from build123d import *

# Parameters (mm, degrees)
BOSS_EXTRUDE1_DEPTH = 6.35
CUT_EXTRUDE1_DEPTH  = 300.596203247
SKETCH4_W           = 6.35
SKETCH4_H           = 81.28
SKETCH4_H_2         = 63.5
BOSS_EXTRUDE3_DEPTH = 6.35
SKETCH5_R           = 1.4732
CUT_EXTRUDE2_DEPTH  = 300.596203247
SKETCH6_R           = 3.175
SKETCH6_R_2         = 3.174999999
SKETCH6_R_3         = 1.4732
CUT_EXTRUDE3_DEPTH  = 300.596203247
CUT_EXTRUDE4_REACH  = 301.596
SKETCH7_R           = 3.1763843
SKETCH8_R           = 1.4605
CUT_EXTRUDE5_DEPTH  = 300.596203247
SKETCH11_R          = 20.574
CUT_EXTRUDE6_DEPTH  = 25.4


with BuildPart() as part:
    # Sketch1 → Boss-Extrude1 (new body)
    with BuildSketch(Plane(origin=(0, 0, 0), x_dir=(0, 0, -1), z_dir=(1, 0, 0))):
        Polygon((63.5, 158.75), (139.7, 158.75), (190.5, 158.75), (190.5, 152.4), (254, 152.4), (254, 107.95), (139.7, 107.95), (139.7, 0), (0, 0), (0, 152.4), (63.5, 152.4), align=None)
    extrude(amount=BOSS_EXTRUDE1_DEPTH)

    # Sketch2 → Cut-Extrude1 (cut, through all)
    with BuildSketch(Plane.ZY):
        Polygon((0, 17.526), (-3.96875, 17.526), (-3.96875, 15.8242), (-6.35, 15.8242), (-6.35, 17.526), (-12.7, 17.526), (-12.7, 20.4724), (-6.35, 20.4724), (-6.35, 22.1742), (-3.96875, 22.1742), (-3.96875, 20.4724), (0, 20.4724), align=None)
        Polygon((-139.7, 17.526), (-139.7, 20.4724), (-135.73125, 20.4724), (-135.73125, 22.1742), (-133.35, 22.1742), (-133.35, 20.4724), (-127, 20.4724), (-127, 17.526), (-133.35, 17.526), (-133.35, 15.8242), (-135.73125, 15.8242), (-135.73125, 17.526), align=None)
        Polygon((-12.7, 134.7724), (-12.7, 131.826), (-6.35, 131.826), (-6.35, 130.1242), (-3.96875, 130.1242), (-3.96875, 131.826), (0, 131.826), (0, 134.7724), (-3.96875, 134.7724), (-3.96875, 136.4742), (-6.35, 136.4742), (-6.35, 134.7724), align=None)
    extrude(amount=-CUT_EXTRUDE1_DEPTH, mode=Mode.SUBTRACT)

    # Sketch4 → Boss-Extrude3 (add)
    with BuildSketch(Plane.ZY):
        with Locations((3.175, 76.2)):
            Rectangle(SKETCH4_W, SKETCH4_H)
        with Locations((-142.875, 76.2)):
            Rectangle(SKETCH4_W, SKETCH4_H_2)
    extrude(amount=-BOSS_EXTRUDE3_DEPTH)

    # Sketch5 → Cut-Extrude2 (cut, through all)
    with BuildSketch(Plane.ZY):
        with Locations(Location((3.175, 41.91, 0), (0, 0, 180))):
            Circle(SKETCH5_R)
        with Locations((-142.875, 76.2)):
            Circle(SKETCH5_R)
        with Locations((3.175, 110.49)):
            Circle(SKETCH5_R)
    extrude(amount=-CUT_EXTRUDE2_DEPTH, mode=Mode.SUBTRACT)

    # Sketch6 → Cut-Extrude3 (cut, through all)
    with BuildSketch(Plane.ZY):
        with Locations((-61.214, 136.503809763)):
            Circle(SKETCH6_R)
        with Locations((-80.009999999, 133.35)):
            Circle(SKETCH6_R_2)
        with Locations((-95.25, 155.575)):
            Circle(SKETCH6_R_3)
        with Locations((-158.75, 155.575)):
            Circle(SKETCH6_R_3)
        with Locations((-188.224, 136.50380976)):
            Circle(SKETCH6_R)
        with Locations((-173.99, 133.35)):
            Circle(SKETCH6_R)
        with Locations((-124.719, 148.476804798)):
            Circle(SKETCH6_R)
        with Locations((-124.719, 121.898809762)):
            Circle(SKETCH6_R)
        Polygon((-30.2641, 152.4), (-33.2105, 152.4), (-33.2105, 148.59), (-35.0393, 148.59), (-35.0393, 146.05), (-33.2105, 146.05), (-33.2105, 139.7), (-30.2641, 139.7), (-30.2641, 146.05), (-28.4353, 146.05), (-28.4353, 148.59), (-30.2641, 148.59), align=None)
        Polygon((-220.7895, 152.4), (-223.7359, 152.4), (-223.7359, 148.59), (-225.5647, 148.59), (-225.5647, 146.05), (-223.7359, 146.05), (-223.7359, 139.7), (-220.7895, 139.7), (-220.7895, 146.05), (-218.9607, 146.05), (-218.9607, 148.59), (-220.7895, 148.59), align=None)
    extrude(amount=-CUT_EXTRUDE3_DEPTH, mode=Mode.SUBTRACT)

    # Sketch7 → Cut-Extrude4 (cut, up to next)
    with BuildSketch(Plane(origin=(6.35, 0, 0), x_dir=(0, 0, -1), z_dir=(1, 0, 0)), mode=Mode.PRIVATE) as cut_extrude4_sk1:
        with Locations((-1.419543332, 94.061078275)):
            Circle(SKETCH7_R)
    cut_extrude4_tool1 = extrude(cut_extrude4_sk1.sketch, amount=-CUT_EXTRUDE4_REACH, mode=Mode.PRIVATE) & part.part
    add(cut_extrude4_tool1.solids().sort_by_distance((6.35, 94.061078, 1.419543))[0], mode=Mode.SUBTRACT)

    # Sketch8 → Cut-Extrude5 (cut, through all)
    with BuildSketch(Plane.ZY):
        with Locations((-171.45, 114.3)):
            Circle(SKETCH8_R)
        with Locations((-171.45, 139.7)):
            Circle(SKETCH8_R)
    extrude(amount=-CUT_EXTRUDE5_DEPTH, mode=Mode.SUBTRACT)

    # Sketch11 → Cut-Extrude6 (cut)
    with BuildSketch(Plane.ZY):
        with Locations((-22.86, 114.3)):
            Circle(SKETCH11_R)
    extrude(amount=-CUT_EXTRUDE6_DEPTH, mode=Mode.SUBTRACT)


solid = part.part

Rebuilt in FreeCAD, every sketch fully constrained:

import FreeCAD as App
import Part
import Sketcher

V = App.Vector
Q = App.Units.Quantity


def add_polygon(sketch, points):
    """Adds a closed chain of lines whose ends are joined by coincident constraints."""
    first, n = sketch.GeometryCount, len(points)
    for a, b in zip(points, points[1:] + points[:1]):
        sketch.addGeometry(Part.LineSegment(App.Vector(*a, 0), App.Vector(*b, 0)), False)
    for i in range(n):
        sketch.addConstraint(Sketcher.Constraint("Coincident", first + i, 2, first + (i + 1) % n, 1))

doc = App.newDocument("Part")
body = doc.addObject("PartDesign::Body", "Body")

sketch1 = body.newObject("Sketcher::SketchObject", "Sketch")
sketch1.AttachmentSupport = (doc.getObject("YZ_Plane"), [""])
sketch1.MapMode = "FlatFace"
add_polygon(sketch1, [(159, -190), (159, -64), (152, -64), (152, 0), (0, 0), (0, -140), (108, -140), (108, -254), (152, -254), (152, -190)])
sketch1.addConstraint([
    Sketcher.Constraint("Vertical", 0),
    Sketcher.Constraint("Horizontal", 1),
    Sketcher.Constraint("Vertical", 2),
    Sketcher.Constraint("Horizontal", 3),
    Sketcher.Constraint("Vertical", 4),
    Sketcher.Constraint("Horizontal", 5),
    Sketcher.Constraint("Vertical", 6),
    Sketcher.Constraint("Horizontal", 7),
    Sketcher.Constraint("Vertical", 8),
    Sketcher.Constraint("Horizontal", 9),
    Sketcher.Constraint("Coincident", 3, 2, -1, 1),
    Sketcher.Constraint("Vertical", 2, 2, 7, 2),
    Sketcher.Constraint("Equal", 2, 8),
    Sketcher.Constraint("DistanceX", 3, 2, 3, 1, Q("6 in")),
    Sketcher.Constraint("DistanceY", 0, 1, 0, 2, Q("5 in")),
    Sketcher.Constraint("DistanceY", 2, 1, 2, 2, Q("2.5 in")),
    Sketcher.Constraint("DistanceY", 4, 2, 4, 1, Q("5.5 in")),
    Sketcher.Constraint("DistanceX", 5, 2, 0, 2, Q("2 in")),
    Sketcher.Constraint("DistanceX", 1, 2, 1, 1, Q("0.25 in")),
])
pad1 = body.newObject("PartDesign::Pad", "Pad")
pad1.Profile = sketch1
pad1.Length = Q("0.25 in")

sketch2 = body.newObject("Sketcher::SketchObject", "Sketch001")
sketch2.AttachmentSupport = (doc.getObject("YZ_Plane"), [""])
sketch2.MapMode = "FlatFace"
add_polygon(sketch2, [(17.5, -4), (17.5, 0), (20.5, 0), (20.5, -4), (22.2, -4), (22.2, -6.3), (20.5, -6.3), (20.5, -12.7), (17.5, -12.7), (17.5, -6.3), (15.8, -6.3), (15.8, -4)])
add_polygon(sketch2, [(20.5, -139.7), (17.5, -139.7), (17.5, -135.7), (15.8, -135.7), (15.8, -133.3), (17.5, -133.3), (17.5, -127), (20.5, -127), (20.5, -133.3), (22.2, -133.3), (22.2, -135.7), (20.5, -135.7)])
add_polygon(sketch2, [(134.8, -12.7), (131.8, -12.7), (131.8, -6.3), (130.1, -6.3), (130.1, -4), (131.8, -4), (131.8, 0), (134.8, 0), (134.8, -4), (136.5, -4), (136.5, -6.3), (134.8, -6.3)])
sketch2.addConstraint([
    Sketcher.Constraint("Vertical", 0),
    Sketcher.Constraint("Horizontal", 1),
    Sketcher.Constraint("Vertical", 2),
    Sketcher.Constraint("Horizontal", 3),
    Sketcher.Constraint("Vertical", 4),
    Sketcher.Constraint("Horizontal", 5),
    Sketcher.Constraint("Vertical", 6),
    Sketcher.Constraint("Horizontal", 7),
    Sketcher.Constraint("Vertical", 8),
    Sketcher.Constraint("Horizontal", 9),
    Sketcher.Constraint("Vertical", 10),
    Sketcher.Constraint("Horizontal", 11),
    Sketcher.Constraint("Horizontal", 12),
    Sketcher.Constraint("Vertical", 13),
    Sketcher.Constraint("Horizontal", 14),
    Sketcher.Constraint("Vertical", 15),
    Sketcher.Constraint("Horizontal", 16),
    Sketcher.Constraint("Vertical", 17),
    Sketcher.Constraint("Horizontal", 18),
    Sketcher.Constraint("Vertical", 19),
    Sketcher.Constraint("Horizontal", 20),
    Sketcher.Constraint("Vertical", 21),
    Sketcher.Constraint("Horizontal", 22),
    Sketcher.Constraint("Vertical", 23),
    Sketcher.Constraint("Horizontal", 24),
    Sketcher.Constraint("Vertical", 25),
    Sketcher.Constraint("Horizontal", 26),
    Sketcher.Constraint("Vertical", 27),
    Sketcher.Constraint("Horizontal", 28),
    Sketcher.Constraint("Vertical", 29),
    Sketcher.Constraint("Horizontal", 30),
    Sketcher.Constraint("Vertical", 31),
    Sketcher.Constraint("Horizontal", 32),
    Sketcher.Constraint("Vertical", 33),
    Sketcher.Constraint("Horizontal", 34),
    Sketcher.Constraint("Vertical", 35),
    Sketcher.Constraint("PointOnObject", 0, 2, -1),
    Sketcher.Constraint("PointOnObject", 29, 2, -1),
    Sketcher.Constraint("Horizontal", 5, 2, 8, 2),
    Sketcher.Constraint("Horizontal", 3, 2, 10, 2),
    Sketcher.Constraint("Horizontal", 16, 2, 19, 2),
    Sketcher.Constraint("Horizontal", 14, 2, 21, 2),
    Sketcher.Constraint("Horizontal", 7, 2, 24, 2),
    Sketcher.Constraint("Horizontal", 9, 2, 25, 2),
    Sketcher.Constraint("Horizontal", 11, 2, 27, 2),
    Sketcher.Constraint("Horizontal", 28, 2, 31, 2),
    Sketcher.Constraint("Horizontal", 26, 2, 33, 2),
    Sketcher.Constraint("Vertical", 2, 2, 5, 2),
    Sketcher.Constraint("Vertical", 0, 2, 7, 2),
    Sketcher.Constraint("Vertical", 11, 2, 12, 2),
    Sketcher.Constraint("Vertical", 10, 2, 14, 2),
    Sketcher.Constraint("Vertical", 13, 2, 16, 2),
    Sketcher.Constraint("Vertical", 6, 2, 18, 2),
    Sketcher.Constraint("Vertical", 4, 2, 20, 2),
    Sketcher.Constraint("Vertical", 19, 2, 22, 2),
    Sketcher.Constraint("Vertical", 25, 2, 28, 2),
    Sketcher.Constraint("Vertical", 31, 2, 34, 2),
    Sketcher.Constraint("Equal", 5, 9),
    Sketcher.Constraint("Equal", 18, 24),
    Sketcher.Constraint("Equal", 22, 26),
    Sketcher.Constraint("Equal", 28, 32),
    Sketcher.Constraint("Equal", 2, 13),
    Sketcher.Constraint("Equal", 10, 15),
    Sketcher.Constraint("Equal", 8, 17),
    Sketcher.Constraint("DistanceY", 17, 2, -1, 1, Q("5 in")),
    Sketcher.Constraint("DistanceY", 6, 2, 6, 1, Q("0.25 in")),
    Sketcher.Constraint("DistanceY", 6, 2, -1, 1, Q("0.5 in")),
    Sketcher.Constraint("DistanceX", 1, 1, 1, 2, Q("0.116 in")),
    Sketcher.Constraint("DistanceX", 3, 1, 3, 2, Q("0.067 in")),
    Sketcher.Constraint("DistanceY", 0, 1, 0, 2, Q("0.15625 in")),
    Sketcher.Constraint("DistanceX", -1, 1, 0, 2, Q("0.69 in")),
    Sketcher.Constraint("DistanceX", -1, 1, 24, 2, Q("5.19 in")),
])
pocket1 = body.newObject("PartDesign::Pocket", "Pocket")
pocket1.Profile = sketch2
pocket1.Type = "ThroughAll"
pocket1.Reversed = True

sketch3 = body.newObject("Sketcher::SketchObject", "Sketch002")
sketch3.AttachmentSupport = (doc.getObject("YZ_Plane"), [""])
sketch3.MapMode = "FlatFace"
add_polygon(sketch3, [(117, 0), (36, 0), (36, 6), (117, 6)])
add_polygon(sketch3, [(108, -146), (44, -146), (44, -140), (108, -140)])
sketch3.addConstraint([
    Sketcher.Constraint("Horizontal", 0),
    Sketcher.Constraint("Vertical", 1),
    Sketcher.Constraint("Horizontal", 2),
    Sketcher.Constraint("Vertical", 3),
    Sketcher.Constraint("Horizontal", 4),
    Sketcher.Constraint("Vertical", 5),
    Sketcher.Constraint("Horizontal", 6),
    Sketcher.Constraint("Vertical", 7),
    Sketcher.Constraint("PointOnObject", 0, 2, -1),
    Sketcher.Constraint("Equal", 3, 5),
    Sketcher.Constraint("DistanceX", 0, 2, 0, 1, Q("3.2 in")),
    Sketcher.Constraint("DistanceX", 4, 2, 4, 1, Q("2.5 in")),
    Sketcher.Constraint("DistanceY", 4, 2, 1, 2, Q("6 in")),
    Sketcher.Constraint("DistanceY", 1, 1, 1, 2, Q("0.25 in")),
    Sketcher.Constraint("DistanceX", -1, 1, 0, 2, Q("1.4 in")),
    Sketcher.Constraint("DistanceX", -1, 1, 4, 2, Q("1.75 in")),
])
pad2 = body.newObject("PartDesign::Pad", "Pad001")
pad2.Profile = sketch3
pad2.Length = Q("0.25 in")

sketch4 = body.newObject("Sketcher::SketchObject", "Sketch003")
sketch4.AttachmentSupport = (doc.getObject("YZ_Plane"), [""])
sketch4.MapMode = "FlatFace"
sketch4.addGeometry([
    Part.Circle(V(41.9, 3.2, 0), V(0, 0, 1), 1.5),
    Part.Circle(V(76.2, -142.9, 0), V(0, 0, 1), 1.5),
    Part.Circle(V(110.5, 3.2, 0), V(0, 0, 1), 1.5),
], False)
sketch4.addConstraint([
    Sketcher.Constraint("Equal", 0, 1),
    Sketcher.Constraint("Equal", 1, 2),
    Sketcher.Constraint("Horizontal", 0, 3, 2, 3),
    Sketcher.Constraint("Diameter", 0, Q("0.116 in")),
    Sketcher.Constraint("DistanceX", -1, 1, 1, 3, Q("3 in")),
    Sketcher.Constraint("DistanceX", 0, 3, 2, 3, Q("2.7 in")),
    Sketcher.Constraint("DistanceX", -1, 1, 0, 3, Q("1.65 in")),
    Sketcher.Constraint("DistanceY", 1, 3, 0, 3, Q("5.75 in")),
    Sketcher.Constraint("DistanceY", -1, 1, 0, 3, Q("0.125 in")),
])
pocket2 = body.newObject("PartDesign::Pocket", "Pocket001")
pocket2.Profile = sketch4
pocket2.Type = "ThroughAll"
pocket2.Reversed = True

sketch5 = body.newObject("Sketcher::SketchObject", "Sketch004")
sketch5.AttachmentSupport = (doc.getObject("YZ_Plane"), [""])
sketch5.MapMode = "FlatFace"
sketch5.addGeometry(Part.Circle(V(136.5, -61.2, 0), V(0, 0, 1), 3.2), False)
sketch5.addGeometry(Part.Circle(V(133.3, -80, 0), V(0, 0, 1), 3.2), False)
sketch5.addGeometry(Part.Circle(V(155.6, -95.2, 0), V(0, 0, 1), 1.5), False)
sketch5.addGeometry(Part.Circle(V(155.6, -158.8, 0), V(0, 0, 1), 1.5), False)
sketch5.addGeometry(Part.Circle(V(136.5, -188.2, 0), V(0, 0, 1), 3.2), False)
sketch5.addGeometry(Part.Circle(V(133.3, -174, 0), V(0, 0, 1), 3.2), False)
sketch5.addGeometry(Part.Circle(V(148.5, -124.7, 0), V(0, 0, 1), 3.2), False)
sketch5.addGeometry(Part.Circle(V(121.9, -124.7, 0), V(0, 0, 1), 3.2), False)
add_polygon(sketch5, [(152.4, -30.3), (152.4, -33.2), (148.6, -33.2), (148.6, -35), (146.1, -35), (146.1, -33.2), (139.7, -33.2), (139.7, -30.3), (146.1, -30.3), (146.1, -28.4), (148.6, -28.4), (148.6, -30.3)])
add_polygon(sketch5, [(152.4, -220.8), (152.4, -223.7), (148.6, -223.7), (148.6, -225.6), (146.1, -225.6), (146.1, -223.7), (139.7, -223.7), (139.7, -220.8), (146.1, -220.8), (146.1, -219), (148.6, -219), (148.6, -220.8)])
sketch5.addConstraint([
    Sketcher.Constraint("Vertical", 8),
    Sketcher.Constraint("Horizontal", 9),
    Sketcher.Constraint("Vertical", 10),
    Sketcher.Constraint("Horizontal", 11),
    Sketcher.Constraint("Vertical", 12),
    Sketcher.Constraint("Horizontal", 13),
    Sketcher.Constraint("Vertical", 14),
    Sketcher.Constraint("Horizontal", 15),
    Sketcher.Constraint("Vertical", 16),
    Sketcher.Constraint("Horizontal", 17),
    Sketcher.Constraint("Vertical", 18),
    Sketcher.Constraint("Horizontal", 19),
    Sketcher.Constraint("Vertical", 20),
    Sketcher.Constraint("Horizontal", 21),
    Sketcher.Constraint("Vertical", 22),
    Sketcher.Constraint("Horizontal", 23),
    Sketcher.Constraint("Vertical", 24),
    Sketcher.Constraint("Horizontal", 25),
    Sketcher.Constraint("Vertical", 26),
    Sketcher.Constraint("Horizontal", 27),
    Sketcher.Constraint("Vertical", 28),
    Sketcher.Constraint("Horizontal", 29),
    Sketcher.Constraint("Vertical", 30),
    Sketcher.Constraint("Horizontal", 31),
    Sketcher.Constraint("Equal", 0, 1),
    Sketcher.Constraint("Equal", 2, 3),
    Sketcher.Constraint("Equal", 1, 4),
    Sketcher.Constraint("Equal", 4, 5),
    Sketcher.Constraint("Equal", 5, 6),
    Sketcher.Constraint("Equal", 6, 7),
    Sketcher.Constraint("Horizontal", 6, 3, 7, 3),
    Sketcher.Constraint("Horizontal", 9, 2, 12, 2),
    Sketcher.Constraint("Horizontal", 15, 2, 18, 2),
    Sketcher.Constraint("Horizontal", 21, 2, 24, 2),
    Sketcher.Constraint("Horizontal", 27, 2, 30, 2),
    Sketcher.Constraint("Vertical", 2, 3, 3, 3),
    Sketcher.Constraint("Vertical", 0, 3, 4, 3),
    Sketcher.Constraint("Vertical", 1, 3, 5, 3),
    Sketcher.Constraint("Vertical", 12, 2, 15, 2),
    Sketcher.Constraint("Vertical", 10, 2, 17, 2),
    Sketcher.Constraint("Vertical", 19, 2, 20, 2),
    Sketcher.Constraint("Vertical", 18, 2, 21, 2),
    Sketcher.Constraint("Vertical", 16, 2, 23, 2),
    Sketcher.Constraint("Vertical", 14, 2, 25, 2),
    Sketcher.Constraint("Vertical", 24, 2, 27, 2),
    Sketcher.Constraint("Vertical", 22, 2, 29, 2),
    Sketcher.Constraint("Equal", 12, 16),
    Sketcher.Constraint("Equal", 14, 20),
    Sketcher.Constraint("Equal", 18, 22),
    Sketcher.Constraint("Equal", 24, 28),
    Sketcher.Constraint("Diameter", 0, Q("0.25 in")),
    Sketcher.Constraint("Diameter", 2, Q("0.116 in")),
    Sketcher.Constraint("DistanceX", 11, 2, 11, 1, Q("0.1 in")),
    Sketcher.Constraint("DistanceX", -1, 1, 8, 2, Q("6 in")),
    Sketcher.Constraint("DistanceX", 9, 2, 9, 1, Q("0.15 in")),
    Sketcher.Constraint("DistanceX", 13, 2, 13, 1, Q("0.25 in")),
    Sketcher.Constraint("DistanceY", 2, 3, 1, 3, Q("0.6 in")),
    Sketcher.Constraint("DistanceY", 3, 3, 2, 3, Q("2.5 in")),
    Sketcher.Constraint("DistanceY", 5, 3, 3, 3, Q("0.6 in")),
    Sketcher.Constraint("DistanceX", 1, 3, 9, 2, Q("0.6 in")),
    Sketcher.Constraint("DistanceY", 8, 2, 8, 1, Q("0.116 in")),
    Sketcher.Constraint("DistanceY", 10, 2, 10, 1, Q("0.072 in")),
    Sketcher.Constraint("DistanceY", 0, 3, -1, 1, Q("2.41 in")),
    Sketcher.Constraint("DistanceY", 1, 3, -1, 1, Q("3.15 in")),
    Sketcher.Constraint("DistanceX", -1, 1, 2, 3, Q("6.125 in")),
    Sketcher.Constraint("DistanceY", 8, 2, -1, 1, Q("1.3075 in")),
    Sketcher.Constraint("DistanceY", 20, 2, -1, 1, Q("8.8085 in")),
    Sketcher.Constraint("DistanceY", 4, 3, -1, 1, Q("188.224 mm")),
    Sketcher.Constraint("DistanceY", 6, 3, -1, 1, Q("124.719 mm")),
    Sketcher.Constraint("DistanceX", -1, 1, 0, 3, Q("136.50381 mm")),
    Sketcher.Constraint("DistanceX", -1, 1, 7, 3, Q("121.89881 mm")),
    Sketcher.Constraint("DistanceX", -1, 1, 6, 3, Q("148.476805 mm")),
])
pocket3 = body.newObject("PartDesign::Pocket", "Pocket002")
pocket3.Profile = sketch5
pocket3.Type = "ThroughAll"
pocket3.Reversed = True

sketch6 = body.newObject("Sketcher::SketchObject", "Sketch005")
sketch6.AttachmentSupport = (doc.getObject("YZ_Plane"), [""])
sketch6.MapMode = "FlatFace"
sketch6.AttachmentOffset = App.Placement(V(0, 0, 0.25 * 25.4), App.Rotation())
sketch6.addGeometry(Part.Circle(V(94.1, 1.4, 0), V(0, 0, 1), 3.2), False)
sketch6.addConstraint([
    Sketcher.Constraint("Diameter", 0, Q("6.352769 mm")),
    Sketcher.Constraint("DistanceX", -1, 1, 0, 3, Q("94.061078 mm")),
    Sketcher.Constraint("DistanceY", -1, 1, 0, 3, Q("1.419543 mm")),
])
pocket4 = body.newObject("PartDesign::Pocket", "Pocket003")
pocket4.Profile = sketch6
pocket4.Type = "UpToFirst"

sketch7 = body.newObject("Sketcher::SketchObject", "Sketch006")
sketch7.AttachmentSupport = (doc.getObject("YZ_Plane"), [""])
sketch7.MapMode = "FlatFace"
sketch7.addGeometry([
    Part.Circle(V(114.3, -171.4, 0), V(0, 0, 1), 1.5),
    Part.Circle(V(139.7, -171.4, 0), V(0, 0, 1), 1.5),
], False)
sketch7.addConstraint([
    Sketcher.Constraint("Equal", 0, 1),
    Sketcher.Constraint("Horizontal", 0, 3, 1, 3),
    Sketcher.Constraint("Diameter", 0, Q("0.115 in")),
    Sketcher.Constraint("DistanceX", 0, 3, 1, 3, Q("1 in")),
    Sketcher.Constraint("DistanceX", -1, 1, 0, 3, Q("4.5 in")),
    Sketcher.Constraint("DistanceY", 0, 3, -1, 1, Q("6.75 in")),
])
pocket5 = body.newObject("PartDesign::Pocket", "Pocket004")
pocket5.Profile = sketch7
pocket5.Type = "ThroughAll"
pocket5.Reversed = True

sketch8 = body.newObject("Sketcher::SketchObject", "Sketch007")
sketch8.AttachmentSupport = (doc.getObject("YZ_Plane"), [""])
sketch8.MapMode = "FlatFace"
sketch8.addGeometry(Part.Circle(V(114, -23, 0), V(0, 0, 1), 21), False)
sketch8.addConstraint([
    Sketcher.Constraint("Diameter", 0, Q("1.62 in")),
    Sketcher.Constraint("DistanceX", -1, 1, 0, 3, Q("4.5 in")),
    Sketcher.Constraint("DistanceY", 0, 3, -1, 1, Q("0.9 in")),
])
pocket6 = body.newObject("PartDesign::Pocket", "Pocket005")
pocket6.Profile = sketch8
pocket6.Length = Q("1 in")
pocket6.Reversed = True

doc.recompute()
